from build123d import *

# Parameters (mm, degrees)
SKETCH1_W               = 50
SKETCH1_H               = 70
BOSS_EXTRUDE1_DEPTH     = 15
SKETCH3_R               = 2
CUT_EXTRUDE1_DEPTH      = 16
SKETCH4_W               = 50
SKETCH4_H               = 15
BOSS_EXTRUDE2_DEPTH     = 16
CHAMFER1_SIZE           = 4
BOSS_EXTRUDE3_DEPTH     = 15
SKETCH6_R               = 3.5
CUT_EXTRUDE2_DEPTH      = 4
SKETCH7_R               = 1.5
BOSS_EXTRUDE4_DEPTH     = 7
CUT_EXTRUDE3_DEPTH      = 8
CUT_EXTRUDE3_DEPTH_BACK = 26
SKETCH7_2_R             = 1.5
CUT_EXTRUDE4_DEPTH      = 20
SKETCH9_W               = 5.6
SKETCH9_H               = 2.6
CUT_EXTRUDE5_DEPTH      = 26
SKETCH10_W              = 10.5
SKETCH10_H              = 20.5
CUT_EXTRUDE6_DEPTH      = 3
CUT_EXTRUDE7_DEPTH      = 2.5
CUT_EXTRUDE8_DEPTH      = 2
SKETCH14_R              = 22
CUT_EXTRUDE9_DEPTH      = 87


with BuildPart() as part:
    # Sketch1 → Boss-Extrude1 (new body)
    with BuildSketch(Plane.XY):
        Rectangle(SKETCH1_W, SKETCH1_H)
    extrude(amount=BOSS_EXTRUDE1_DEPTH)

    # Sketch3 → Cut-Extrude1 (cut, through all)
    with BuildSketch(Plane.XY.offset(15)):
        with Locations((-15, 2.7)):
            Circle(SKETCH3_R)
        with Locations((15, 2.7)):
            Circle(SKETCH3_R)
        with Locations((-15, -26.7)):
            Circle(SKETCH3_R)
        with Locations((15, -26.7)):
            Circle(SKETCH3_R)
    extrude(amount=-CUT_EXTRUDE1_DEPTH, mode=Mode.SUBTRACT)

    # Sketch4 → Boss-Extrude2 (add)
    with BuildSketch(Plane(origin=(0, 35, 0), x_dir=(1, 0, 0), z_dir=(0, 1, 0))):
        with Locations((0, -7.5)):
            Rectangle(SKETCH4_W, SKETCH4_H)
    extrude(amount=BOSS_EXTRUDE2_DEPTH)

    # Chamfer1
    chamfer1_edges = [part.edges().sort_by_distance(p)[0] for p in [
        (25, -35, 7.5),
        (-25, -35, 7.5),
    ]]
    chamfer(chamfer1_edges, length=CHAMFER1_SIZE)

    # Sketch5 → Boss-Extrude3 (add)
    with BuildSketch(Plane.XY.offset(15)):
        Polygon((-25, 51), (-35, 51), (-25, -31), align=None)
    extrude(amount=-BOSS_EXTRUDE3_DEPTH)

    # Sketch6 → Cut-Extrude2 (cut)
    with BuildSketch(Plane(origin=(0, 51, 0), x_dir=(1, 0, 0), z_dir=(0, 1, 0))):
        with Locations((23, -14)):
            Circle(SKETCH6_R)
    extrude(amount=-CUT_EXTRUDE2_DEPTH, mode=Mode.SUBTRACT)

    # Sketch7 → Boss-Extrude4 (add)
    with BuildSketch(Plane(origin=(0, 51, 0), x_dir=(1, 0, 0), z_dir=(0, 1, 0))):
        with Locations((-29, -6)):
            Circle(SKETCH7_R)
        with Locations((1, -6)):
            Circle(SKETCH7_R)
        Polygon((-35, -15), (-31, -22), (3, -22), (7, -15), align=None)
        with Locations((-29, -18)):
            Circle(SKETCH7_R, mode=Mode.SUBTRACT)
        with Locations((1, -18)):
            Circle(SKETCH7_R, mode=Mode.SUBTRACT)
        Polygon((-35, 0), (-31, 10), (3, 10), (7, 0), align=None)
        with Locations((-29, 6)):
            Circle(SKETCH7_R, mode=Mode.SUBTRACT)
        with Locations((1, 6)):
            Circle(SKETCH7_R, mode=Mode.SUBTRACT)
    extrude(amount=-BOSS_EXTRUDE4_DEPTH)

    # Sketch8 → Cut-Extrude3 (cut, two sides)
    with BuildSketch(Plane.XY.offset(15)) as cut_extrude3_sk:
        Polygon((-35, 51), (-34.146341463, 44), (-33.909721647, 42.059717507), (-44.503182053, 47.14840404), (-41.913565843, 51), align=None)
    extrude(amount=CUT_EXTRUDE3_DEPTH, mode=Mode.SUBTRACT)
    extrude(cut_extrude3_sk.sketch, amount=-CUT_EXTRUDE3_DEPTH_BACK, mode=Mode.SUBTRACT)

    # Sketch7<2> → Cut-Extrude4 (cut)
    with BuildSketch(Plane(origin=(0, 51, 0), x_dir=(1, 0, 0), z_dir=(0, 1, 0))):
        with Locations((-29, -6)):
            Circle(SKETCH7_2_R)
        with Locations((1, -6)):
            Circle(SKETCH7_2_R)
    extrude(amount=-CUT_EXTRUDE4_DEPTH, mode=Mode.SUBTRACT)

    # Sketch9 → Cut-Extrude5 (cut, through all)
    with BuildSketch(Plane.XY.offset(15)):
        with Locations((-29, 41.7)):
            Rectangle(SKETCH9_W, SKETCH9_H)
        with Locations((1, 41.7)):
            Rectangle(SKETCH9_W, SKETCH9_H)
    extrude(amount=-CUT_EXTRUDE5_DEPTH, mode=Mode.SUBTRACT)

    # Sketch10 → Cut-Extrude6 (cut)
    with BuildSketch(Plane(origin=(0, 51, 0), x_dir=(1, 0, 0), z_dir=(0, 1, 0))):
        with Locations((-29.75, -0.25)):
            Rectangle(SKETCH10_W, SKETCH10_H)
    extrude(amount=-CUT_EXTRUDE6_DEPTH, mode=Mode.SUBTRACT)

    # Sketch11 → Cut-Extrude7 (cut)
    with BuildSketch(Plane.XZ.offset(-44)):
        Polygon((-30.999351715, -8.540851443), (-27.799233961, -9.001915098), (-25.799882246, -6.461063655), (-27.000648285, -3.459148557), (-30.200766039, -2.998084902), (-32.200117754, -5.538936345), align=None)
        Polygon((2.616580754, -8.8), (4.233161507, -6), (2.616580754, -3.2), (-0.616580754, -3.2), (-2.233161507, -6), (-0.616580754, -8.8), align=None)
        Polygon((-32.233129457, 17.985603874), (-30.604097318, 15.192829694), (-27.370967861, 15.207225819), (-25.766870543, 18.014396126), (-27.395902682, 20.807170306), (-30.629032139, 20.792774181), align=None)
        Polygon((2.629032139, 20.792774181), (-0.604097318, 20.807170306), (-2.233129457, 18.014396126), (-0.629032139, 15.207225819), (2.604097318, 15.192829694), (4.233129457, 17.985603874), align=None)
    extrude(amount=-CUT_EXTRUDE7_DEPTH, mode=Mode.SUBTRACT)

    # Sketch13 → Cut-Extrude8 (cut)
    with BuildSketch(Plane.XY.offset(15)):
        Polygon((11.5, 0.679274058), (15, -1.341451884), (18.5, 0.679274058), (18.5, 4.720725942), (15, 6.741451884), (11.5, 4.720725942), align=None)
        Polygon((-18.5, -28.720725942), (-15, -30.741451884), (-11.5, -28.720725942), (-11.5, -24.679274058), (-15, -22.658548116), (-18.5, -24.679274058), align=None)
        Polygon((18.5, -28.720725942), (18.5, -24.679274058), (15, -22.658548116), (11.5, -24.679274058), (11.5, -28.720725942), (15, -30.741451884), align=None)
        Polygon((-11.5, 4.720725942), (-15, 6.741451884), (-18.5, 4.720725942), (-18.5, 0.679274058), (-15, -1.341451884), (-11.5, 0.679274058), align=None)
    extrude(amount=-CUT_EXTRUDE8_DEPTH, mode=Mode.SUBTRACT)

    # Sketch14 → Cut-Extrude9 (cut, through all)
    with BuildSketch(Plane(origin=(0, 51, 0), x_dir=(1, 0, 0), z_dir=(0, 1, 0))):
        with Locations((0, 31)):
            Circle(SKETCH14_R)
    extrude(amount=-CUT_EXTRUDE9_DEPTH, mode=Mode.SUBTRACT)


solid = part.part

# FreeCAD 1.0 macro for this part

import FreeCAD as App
import Part
import Sketcher
Q = App.Units.Quantity


def edges_at(feature, points):
    """Names of the edges that pass closest to the given points."""
    edges = feature.Shape.Edges
    near = lambda p: min(range(len(edges)), key=lambda i: edges[i].distToShape(Part.Vertex(*p))[0])
    return sorted({f"Edge{near(p) + 1}" for p in points})


def add_polygon(sketch, points):
    """Adds a closed chain of lines whose ends are joined by coincident constraints."""
    first, n = sketch.GeometryCount, len(points)
    for a, b in zip(points, points[1:] + points[:1]):
        sketch.addGeometry(Part.LineSegment(App.Vector(*a, 0), App.Vector(*b, 0)), False)
    for i in range(n):
        sketch.addConstraint(Sketcher.Constraint("Coincident", first + i, 2, first + (i + 1) % n, 1))

doc = App.newDocument("Part")
body = doc.addObject("PartDesign::Body", "Body")

sketch1 = body.newObject("Sketcher::SketchObject", "Sketch")
sketch1.AttachmentSupport = (doc.getObject("XY_Plane"), [""])
sketch1.MapMode = "FlatFace"
add_polygon(sketch1, [(-25, 35), (-25, -35), (25, -35), (25, 35)])
sketch1.addConstraint([
    Sketcher.Constraint("Vertical", 0),
    Sketcher.Constraint("Horizontal", 1),
    Sketcher.Constraint("Vertical", 2),
    Sketcher.Constraint("Horizontal", 3),
    Sketcher.Constraint("Symmetric", 0, 2, 2, 2, -1, 1),
    Sketcher.Constraint("DistanceX", 1, 1, 1, 2, Q("50 mm")),
    Sketcher.Constraint("DistanceY", 0, 2, 0, 1, Q("70 mm")),
])
pad1 = body.newObject("PartDesign::Pad", "Pad")
pad1.Profile = sketch1
pad1.Length = 15

sketch2 = body.newObject("Sketcher::SketchObject", "Sketch001")
sketch2.AttachmentSupport = (doc.getObject("XY_Plane"), [""])
sketch2.MapMode = "FlatFace"
sketch2.AttachmentOffset = App.Placement(App.Vector(0, 0, 15), App.Rotation())
sketch2.addGeometry([
    Part.Circle(App.Vector(-15, 2.7, 0), App.Vector(0, 0, 1), 2),
    Part.Circle(App.Vector(15, 2.7, 0), App.Vector(0, 0, 1), 2),
    Part.Circle(App.Vector(-15, -26.7, 0), App.Vector(0, 0, 1), 2),
    Part.Circle(App.Vector(15, -26.7, 0), App.Vector(0, 0, 1), 2),
], False)
sketch2.addConstraint([
    Sketcher.Constraint("Equal", 0, 1),
    Sketcher.Constraint("Equal", 1, 2),
    Sketcher.Constraint("Equal", 2, 3),
    Sketcher.Constraint("Symmetric", 0, 3, 1, 3, -2),
    Sketcher.Constraint("Symmetric", 2, 3, 3, 3, -2),
    Sketcher.Constraint("Vertical", 0, 3, 2, 3),
    Sketcher.Constraint("Diameter", 0, Q("4 mm")),
    Sketcher.Constraint("DistanceX", 0, 3, -1, 1, Q("15 mm")),
    Sketcher.Constraint("DistanceY", -1, 1, 0, 3, Q("2.7 mm")),
    Sketcher.Constraint("DistanceY", 2, 3, -1, 1, Q("26.7 mm")),
])
pocket1 = body.newObject("PartDesign::Pocket", "Pocket")
pocket1.Profile = sketch2
pocket1.Type = "ThroughAll"

sketch3 = body.newObject("Sketcher::SketchObject", "Sketch002")
sketch3.AttachmentSupport = (doc.getObject("XZ_Plane"), [""])
sketch3.MapMode = "FlatFace"
sketch3.AttachmentOffset = App.Placement(App.Vector(0, 0, -35), App.Rotation())
add_polygon(sketch3, [(-25, 0), (-25, 15), (25, 15), (25, 0)])
sketch3.addConstraint([
    Sketcher.Constraint("Vertical", 0),
    Sketcher.Constraint("Horizontal", 1),
    Sketcher.Constraint("Vertical", 2),
    Sketcher.Constraint("Horizontal", 3),
    Sketcher.Constraint("Symmetric", 2, 2, 3, 2, -1, 1),
    Sketcher.Constraint("DistanceX", 1, 1, 1, 2, Q("50 mm")),
    Sketcher.Constraint("DistanceY", 0, 1, 0, 2, Q("15 mm")),
])
pad2 = body.newObject("PartDesign::Pad", "Pad001")
pad2.Profile = sketch3
pad2.Length = 16
pad2.Reversed = True
doc.recompute()

chamfer = body.newObject("PartDesign::Chamfer", "Chamfer")
chamfer.Base = (pad2, edges_at(pad2, [(25, -35, 7.5), (-25, -35, 7.5)]))
chamfer.Size = 4

sketch4 = body.newObject("Sketcher::SketchObject", "Sketch003")
sketch4.AttachmentSupport = (doc.getObject("XY_Plane"), [""])
sketch4.MapMode = "FlatFace"
sketch4.AttachmentOffset = App.Placement(App.Vector(0, 0, 15), App.Rotation())
add_polygon(sketch4, [(-25, 51), (-35, 51), (-25, -31)])
sketch4.addConstraint([
    Sketcher.Constraint("Horizontal", 0),
    Sketcher.Constraint("Vertical", 2),
    Sketcher.Constraint("DistanceX", 0, 2, 0, 1, Q("10 mm")),
    Sketcher.Constraint("DistanceY", 2, 1, 2, 2, Q("82 mm")),
    Sketcher.Constraint("DistanceX", 0, 2, -1, 1, Q("35 mm")),
    Sketcher.Constraint("DistanceY", -1, 1, 0, 2, Q("51 mm")),
])
pad3 = body.newObject("PartDesign::Pad", "Pad002")
pad3.Profile = sketch4
pad3.Length = 15
pad3.Reversed = True

sketch5 = body.newObject("Sketcher::SketchObject", "Sketch004")
sketch5.AttachmentSupport = (doc.getObject("XZ_Plane"), [""])
sketch5.MapMode = "FlatFace"
sketch5.AttachmentOffset = App.Placement(App.Vector(0, 0, -51), App.Rotation())
sketch5.addGeometry(Part.Circle(App.Vector(23, 14, 0), App.Vector(0, 0, 1), 3.5), False)
sketch5.addConstraint([
    Sketcher.Constraint("Diameter", 0, Q("7 mm")),
    Sketcher.Constraint("DistanceX", -1, 1, 0, 3, Q("23 mm")),
    Sketcher.Constraint("DistanceY", -1, 1, 0, 3, Q("14 mm")),
])
pocket2 = body.newObject("PartDesign::Pocket", "Pocket001")
pocket2.Profile = sketch5
pocket2.Length = 4
pocket2.Reversed = True

sketch6 = body.newObject("Sketcher::SketchObject", "Sketch005")
sketch6.AttachmentSupport = (doc.getObject("XZ_Plane"), [""])
sketch6.MapMode = "FlatFace"
sketch6.AttachmentOffset = App.Placement(App.Vector(0, 0, -51), App.Rotation())
sketch6.addGeometry(Part.Circle(App.Vector(-29, 6, 0), App.Vector(0, 0, 1), 1.5), False)
sketch6.addGeometry(Part.Circle(App.Vector(1, 6, 0), App.Vector(0, 0, 1), 1.5), False)
add_polygon(sketch6, [(-35, 15), (-31, 22), (3, 22), (7, 15)])
sketch6.addGeometry(Part.Circle(App.Vector(-29, 18, 0), App.Vector(0, 0, 1), 1.5), False)
sketch6.addGeometry(Part.Circle(App.Vector(1, 18, 0), App.Vector(0, 0, 1), 1.5), False)
add_polygon(sketch6, [(-31, -10), (-35, 0), (7, 0), (3, -10)])
sketch6.addGeometry(Part.Circle(App.Vector(1, -6, 0), App.Vector(0, 0, 1), 1.5), False)
sketch6.addGeometry(Part.Circle(App.Vector(-29, -6, 0), App.Vector(0, 0, 1), 1.5), False)
sketch6.addConstraint([
    Sketcher.Constraint("Horizontal", 3),
    Sketcher.Constraint("Horizontal", 5),
    Sketcher.Constraint("Horizontal", 9),
    Sketcher.Constraint("Horizontal", 11),
    Sketcher.Constraint("Equal", 0, 1),
    Sketcher.Constraint("Equal", 1, 6),
    Sketcher.Constraint("Equal", 6, 7),
    Sketcher.Constraint("Equal", 7, 12),
    Sketcher.Constraint("Equal", 12, 13),
    Sketcher.Constraint("Symmetric", 1, 3, 12, 3, -1),
    Sketcher.Constraint("Symmetric", 0, 3, 13, 3, -1),
    Sketcher.Constraint("PointOnObject", 8, 2, -1),
    Sketcher.Constraint("Horizontal", 0, 3, 1, 3),
    Sketcher.Constraint("Horizontal", 6, 3, 7, 3),
    Sketcher.Constraint("Vertical", 0, 3, 6, 3),
    Sketcher.Constraint("Vertical", 1, 3, 7, 3),
    Sketcher.Constraint("Vertical", 5, 2, 8, 2),
    Sketcher.Constraint("Vertical", 4, 2, 9, 2),
    Sketcher.Constraint("Vertical", 3, 2, 10, 2),
    Sketcher.Constraint("Vertical", 2, 2, 11, 2),
    Sketcher.Constraint("Equal", 2, 4),
    Sketcher.Constraint("Diameter", 0, Q("3 mm")),
    Sketcher.Constraint("DistanceX", 3, 1, 3, 2, Q("34 mm")),
    Sketcher.Constraint("DistanceX", 5, 2, 5, 1, Q("42 mm")),
    Sketcher.Constraint("DistanceX", 0, 3, -1, 1, Q("29 mm")),
    Sketcher.Constraint("DistanceY", -1, 1, 0, 3, Q("6 mm")),
    Sketcher.Constraint("DistanceX", -1, 1, 1, 3, Q("1 mm")),
    Sketcher.Constraint("DistanceY", -1, 1, 6, 3, Q("18 mm")),
    Sketcher.Constraint("DistanceX", 2, 2, -1, 1, Q("31 mm")),
    Sketcher.Constraint("DistanceY", -1, 1, 2, 2, Q("22 mm")),
    Sketcher.Constraint("DistanceY", -1, 1, 4, 2, Q("15 mm")),
    Sketcher.Constraint("DistanceY", 10, 2, -1, 1, Q("10 mm")),
])
pad4 = body.newObject("PartDesign::Pad", "Pad003")
pad4.Profile = sketch6
pad4.Length = 7

sketch7 = body.newObject("Sketcher::SketchObject", "Sketch006")
sketch7.AttachmentSupport = (doc.getObject("XY_Plane"), [""])
sketch7.MapMode = "FlatFace"
sketch7.AttachmentOffset = App.Placement(App.Vector(0, 0, 15), App.Rotation())
add_polygon(sketch7, [(-34.1, 44), (-35, 51), (-41.9, 51), (-44.5, 47.1), (-33.9, 42.1)])
sketch7.addConstraint([
    Sketcher.Constraint("Horizontal", 1),
    Sketcher.Constraint("Parallel", 0, 4),
    Sketcher.Constraint("DistanceX", 0, 2, -1, 1, Q("35 mm")),
    Sketcher.Constraint("DistanceY", -1, 1, 0, 2, Q("51 mm")),
    Sketcher.Constraint("DistanceY", -1, 1, 4, 2, Q("44 mm")),
    Sketcher.Constraint("Distance", 0, Q("7.05186 mm")),
    Sketcher.Constraint("DistanceX", 1, 2, 1, 1, Q("6.913566 mm")),
    Sketcher.Constraint("DistanceX", 3, 2, -1, 1, Q("33.909722 mm")),
    Sketcher.Constraint("DistanceX", 2, 2, 3, 2, Q("10.59346 mm")),
    Sketcher.Constraint("Distance", 2, Q("4.641218 mm")),
])
pocket3 = body.newObject("PartDesign::Pocket", "Pocket002")
pocket3.Profile = sketch7
pocket3.Type = "ThroughAll"
pocket3.Midplane = True

sketch8 = body.newObject("Sketcher::SketchObject", "Sketch007")
sketch8.AttachmentSupport = (doc.getObject("XZ_Plane"), [""])
sketch8.MapMode = "FlatFace"
sketch8.AttachmentOffset = App.Placement(App.Vector(0, 0, -51), App.Rotation())
sketch8.addGeometry([
    Part.Circle(App.Vector(-29, 6, 0), App.Vector(0, 0, 1), 1.5),
    Part.Circle(App.Vector(1, 6, 0), App.Vector(0, 0, 1), 1.5),
], False)
sketch8.addConstraint([
    Sketcher.Constraint("Equal", 0, 1),
    Sketcher.Constraint("Horizontal", 0, 3, 1, 3),
    Sketcher.Constraint("Diameter", 0, Q("3 mm")),
    Sketcher.Constraint("DistanceX", 0, 3, -1, 1, Q("29 mm")),
    Sketcher.Constraint("DistanceY", -1, 1, 0, 3, Q("6 mm")),
    Sketcher.Constraint("DistanceX", -1, 1, 1, 3, Q("1 mm")),
])
pocket4 = body.newObject("PartDesign::Pocket", "Pocket003")
pocket4.Profile = sketch8
pocket4.Length = 20
pocket4.Reversed = True

sketch9 = body.newObject("Sketcher::SketchObject", "Sketch008")
sketch9.AttachmentSupport = (doc.getObject("XY_Plane"), [""])
sketch9.MapMode = "FlatFace"
sketch9.AttachmentOffset = App.Placement(App.Vector(0, 0, 15), App.Rotation())
add_polygon(sketch9, [(-31.8, 43), (-31.8, 40.4), (-26.2, 40.4), (-26.2, 43)])
add_polygon(sketch9, [(-1.8, 43), (-1.8, 40.4), (3.8, 40.4), (3.8, 43)])
sketch9.addConstraint([
    Sketcher.Constraint("Vertical", 0),
    Sketcher.Constraint("Horizontal", 1),
    Sketcher.Constraint("Vertical", 2),
    Sketcher.Constraint("Horizontal", 3),
    Sketcher.Constraint("Vertical", 4),
    Sketcher.Constraint("Horizontal", 5),
    Sketcher.Constraint("Vertical", 6),
    Sketcher.Constraint("Horizontal", 7),
    Sketcher.Constraint("Horizontal", 1, 2, 4, 2),
    Sketcher.Constraint("Horizontal", 3, 2, 6, 2),
    Sketcher.Constraint("Equal", 3, 5),
    Sketcher.Constraint("DistanceX", 1, 1, 1, 2, Q("5.6 mm")),
    Sketcher.Constraint("DistanceY", 0, 2, 0, 1, Q("2.6 mm")),
    Sketcher.Constraint("DistanceY", -1, 1, 2, 2, Q("43 mm")),
    Sketcher.Constraint("DistanceX", 0, 2, 4, 2, Q("30 mm")),
    Sketcher.Constraint("DistanceX", 0, 2, -1, 1, Q("31.8 mm")),
])
pocket5 = body.newObject("PartDesign::Pocket", "Pocket004")
pocket5.Profile = sketch9
pocket5.Type = "ThroughAll"

sketch10 = body.newObject("Sketcher::SketchObject", "Sketch009")
sketch10.AttachmentSupport = (doc.getObject("XZ_Plane"), [""])
sketch10.MapMode = "FlatFace"
sketch10.AttachmentOffset = App.Placement(App.Vector(0, 0, -51), App.Rotation())
add_polygon(sketch10, [(-35, -10), (-35, 10), (-24, 10), (-24, -10)])
sketch10.addConstraint([
    Sketcher.Constraint("Vertical", 0),
    Sketcher.Constraint("Horizontal", 1),
    Sketcher.Constraint("Vertical", 2),
    Sketcher.Constraint("Horizontal", 3),
    Sketcher.Constraint("DistanceX", 1, 1, 1, 2, Q("10.5 mm")),
    Sketcher.Constraint("DistanceY", 0, 1, 0, 2, Q("20.5 mm")),
    Sketcher.Constraint("DistanceX", 0, 2, -1, 1, Q("35 mm")),
    Sketcher.Constraint("DistanceY", 2, 2, -1, 1, Q("10 mm")),
])
pocket6 = body.newObject("PartDesign::Pocket", "Pocket005")
pocket6.Profile = sketch10
pocket6.Length = 3
pocket6.Reversed = True

sketch11 = body.newObject("Sketcher::SketchObject", "Sketch010")
sketch11.AttachmentSupport = (doc.getObject("XZ_Plane"), [""])
sketch11.MapMode = "FlatFace"
sketch11.AttachmentOffset = App.Placement(App.Vector(0, 0, -44), App.Rotation())
add_polygon(sketch11, [(-31, -8.5), (-27.8, -9), (-25.8, -6.5), (-27, -3.5), (-30.2, -3), (-32.2, -5.5)])
add_polygon(sketch11, [(2.6, -8.8), (4.2, -6), (2.6, -3.2), (-0.6, -3.2), (-2.2, -6), (-0.6, -8.8)])
add_polygon(sketch11, [(-32.2, 18), (-30.6, 15.2), (-27.4, 15.2), (-25.8, 18), (-27.4, 20.8), (-30.6, 20.8)])
add_polygon(sketch11, [(2.6, 20.8), (-0.6, 20.8), (-2.2, 18), (-0.6, 15.2), (2.6, 15.2), (4.2, 18)])
sketch11.addConstraint([
    Sketcher.Constraint("Horizontal", 8),
    Sketcher.Constraint("Horizontal", 11),
    Sketcher.Constraint("Parallel", 0, 3),
    Sketcher.Constraint("Parallel", 1, 4),
    Sketcher.Constraint("Parallel", 2, 5),
    Sketcher.Constraint("Parallel", 6, 9),
    Sketcher.Constraint("Parallel", 7, 10),
    Sketcher.Constraint("Parallel", 12, 15),
    Sketcher.Constraint("Parallel", 13, 16),
    Sketcher.Constraint("Parallel", 14, 17),
    Sketcher.Constraint("Parallel", 18, 21),
    Sketcher.Constraint("Parallel", 19, 22),
    Sketcher.Constraint("Parallel", 20, 23),
    Sketcher.Constraint("Horizontal", 6, 2, 9, 2),
    Sketcher.Constraint("Horizontal", 15, 2, 18, 2),
    Sketcher.Constraint("Horizontal", 14, 2, 19, 2),
    Sketcher.Constraint("Horizontal", 13, 2, 20, 2),
    Sketcher.Constraint("Horizontal", 12, 2, 21, 2),
    Sketcher.Constraint("Horizontal", 17, 2, 22, 2),
    Sketcher.Constraint("Vertical", 8, 2, 10, 2),
    Sketcher.Constraint("Vertical", 7, 2, 11, 2),
    Sketcher.Constraint("Equal", 0, 1),
    Sketcher.Constraint("Equal", 1, 2),
    Sketcher.Constraint("Equal", 2, 3),
    Sketcher.Constraint("Equal", 5, 6),
    Sketcher.Constraint("Equal", 10, 12),
    Sketcher.Constraint("Equal", 12, 13),
    Sketcher.Constraint("Equal", 13, 14),
    Sketcher.Constraint("Equal", 14, 15),
    Sketcher.Constraint("Equal", 17, 18),
    Sketcher.Constraint("Equal", 18, 19),
    Sketcher.Constraint("Equal", 19, 20),
    Sketcher.Constraint("Angle", 6, Q("60 deg")),
    Sketcher.Constraint("DistanceY", 6, 2, -1, 1, Q("6 mm")),
    Sketcher.Constraint("DistanceY", 7, 2, -1, 1, Q("3.2 mm")),
    Sketcher.Constraint("DistanceX", 8, 2, 8, 1, Q("3.233162 mm")),
    Sketcher.Constraint("DistanceX", 1, 2, 8, 2, Q("25.183301 mm")),
    Sketcher.Constraint("DistanceX", 3, 2, 13, 2, Q("2.829798 mm")),
    Sketcher.Constraint("DistanceX", 2, 2, -1, 1, Q("27.000648 mm")),
    Sketcher.Constraint("DistanceY", 2, 2, -1, 1, Q("3.459149 mm")),
    Sketcher.Constraint("DistanceX", 5, 2, -1, 1, Q("30.999352 mm")),
    Sketcher.Constraint("DistanceY", 5, 2, -1, 1, Q("8.540851 mm")),
    Sketcher.Constraint("DistanceX", -1, 1, 6, 2, Q("4.233162 mm")),
    Sketcher.Constraint("DistanceY", -1, 1, 12, 2, Q("15.19283 mm")),
    Sketcher.Constraint("DistanceX", 14, 2, -1, 1, Q("25.766871 mm")),
    Sketcher.Constraint("DistanceY", -1, 1, 15, 2, Q("20.80717 mm")),
    Sketcher.Constraint("DistanceX", 17, 2, -1, 1, Q("32.233129 mm")),
    Sketcher.Constraint("DistanceX", 19, 2, -1, 1, Q("2.233129 mm")),
])
pocket7 = body.newObject("PartDesign::Pocket", "Pocket006")
pocket7.Profile = sketch11
pocket7.Length = 2.5

sketch12 = body.newObject("Sketcher::SketchObject", "Sketch011")
sketch12.AttachmentSupport = (doc.getObject("XY_Plane"), [""])
sketch12.MapMode = "FlatFace"
sketch12.AttachmentOffset = App.Placement(App.Vector(0, 0, 15), App.Rotation())
add_polygon(sketch12, [(11.5, 0.7), (15, -1.3), (18.5, 0.7), (18.5, 4.7), (15, 6.7), (11.5, 4.7)])
add_polygon(sketch12, [(-18.5, -28.7), (-15, -30.7), (-11.5, -28.7), (-11.5, -24.7), (-15, -22.7), (-18.5, -24.7)])
add_polygon(sketch12, [(18.5, -28.7), (18.5, -24.7), (15, -22.7), (11.5, -24.7), (11.5, -28.7), (15, -30.7)])
add_polygon(sketch12, [(-11.5, 4.7), (-15, 6.7), (-18.5, 4.7), (-18.5, 0.7), (-15, -1.3), (-11.5, 0.7)])
sketch12.addConstraint([
    Sketcher.Constraint("Vertical", 2),
    Sketcher.Constraint("Vertical", 5),
    Sketcher.Constraint("Vertical", 8),
    Sketcher.Constraint("Vertical", 11),
    Sketcher.Constraint("Vertical", 12),
    Sketcher.Constraint("Vertical", 15),
    Sketcher.Constraint("Vertical", 20),
    Sketcher.Constraint("Vertical", 23),
    Sketcher.Constraint("Symmetric", 10, 2, 12, 2, -2),
    Sketcher.Constraint("Symmetric", 9, 2, 13, 2, -2),
    Sketcher.Constraint("Symmetric", 8, 2, 14, 2, -2),
    Sketcher.Constraint("Symmetric", 6, 2, 16, 2, -2),
    Sketcher.Constraint("Symmetric", 3, 2, 18, 2, -2),
    Sketcher.Constraint("Symmetric", 2, 2, 19, 2, -2),
    Sketcher.Constraint("Symmetric", 0, 2, 21, 2, -2),
    Sketcher.Constraint("Symmetric", 5, 2, 22, 2, -2),
    Sketcher.Constraint("Parallel", 0, 3),
    Sketcher.Constraint("Parallel", 1, 4),
    Sketcher.Constraint("Parallel", 3, 6),
    Sketcher.Constraint("Parallel", 4, 7),
    Sketcher.Constraint("Parallel", 6, 9),
    Sketcher.Constraint("Parallel", 7, 10),
    Sketcher.Constraint("Parallel", 9, 13),
    Sketcher.Constraint("Parallel", 13, 16),
    Sketcher.Constraint("Parallel", 14, 17),
    Sketcher.Constraint("Parallel", 16, 18),
    Sketcher.Constraint("Parallel", 18, 21),
    Sketcher.Constraint("Horizontal", 2, 2, 4, 2),
    Sketcher.Constraint("Horizontal", 1, 2, 5, 2),
    Sketcher.Constraint("Horizontal", 8, 2, 10, 2),
    Sketcher.Constraint("Horizontal", 7, 2, 11, 2),
    Sketcher.Constraint("Vertical", 2, 2, 12, 2),
    Sketcher.Constraint("Vertical", 3, 2, 13, 2),
    Sketcher.Constraint("Equal", 5, 8),
    Sketcher.Constraint("Angle", 0, Q("-30 deg")),
    Sketcher.Constraint("DistanceX", -1, 1, 0, 2, Q("15 mm")),
    Sketcher.Constraint("DistanceX", 4, 2, 2, 2, Q("7 mm")),
    Sketcher.Constraint("DistanceY", 6, 2, 0, 2, Q("29.4 mm")),
    Sketcher.Constraint("DistanceY", 2, 1, 2, 2, Q("4.041452 mm")),
    Sketcher.Constraint("DistanceY", 0, 2, -1, 1, Q("1.341452 mm")),
])
pocket8 = body.newObject("PartDesign::Pocket", "Pocket007")
pocket8.Profile = sketch12
pocket8.Length = 2

sketch13 = body.newObject("Sketcher::SketchObject", "Sketch012")
sketch13.AttachmentSupport = (doc.getObject("XZ_Plane"), [""])
sketch13.MapMode = "FlatFace"
sketch13.AttachmentOffset = App.Placement(App.Vector(0, 0, -51), App.Rotation())
sketch13.addGeometry(Part.Circle(App.Vector(0, -31, 0), App.Vector(0, 0, 1), 22), False)
sketch13.addConstraint([
    Sketcher.Constraint("PointOnObject", 0, 3, -2),
    Sketcher.Constraint("Diameter", 0, Q("44 mm")),
    Sketcher.Constraint("DistanceY", 0, 3, -1, 1, Q("31 mm")),
])
pocket9 = body.newObject("PartDesign::Pocket", "Pocket008")
pocket9.Profile = sketch13
pocket9.Type = "ThroughAll"
pocket9.Reversed = True

doc.recompute()
